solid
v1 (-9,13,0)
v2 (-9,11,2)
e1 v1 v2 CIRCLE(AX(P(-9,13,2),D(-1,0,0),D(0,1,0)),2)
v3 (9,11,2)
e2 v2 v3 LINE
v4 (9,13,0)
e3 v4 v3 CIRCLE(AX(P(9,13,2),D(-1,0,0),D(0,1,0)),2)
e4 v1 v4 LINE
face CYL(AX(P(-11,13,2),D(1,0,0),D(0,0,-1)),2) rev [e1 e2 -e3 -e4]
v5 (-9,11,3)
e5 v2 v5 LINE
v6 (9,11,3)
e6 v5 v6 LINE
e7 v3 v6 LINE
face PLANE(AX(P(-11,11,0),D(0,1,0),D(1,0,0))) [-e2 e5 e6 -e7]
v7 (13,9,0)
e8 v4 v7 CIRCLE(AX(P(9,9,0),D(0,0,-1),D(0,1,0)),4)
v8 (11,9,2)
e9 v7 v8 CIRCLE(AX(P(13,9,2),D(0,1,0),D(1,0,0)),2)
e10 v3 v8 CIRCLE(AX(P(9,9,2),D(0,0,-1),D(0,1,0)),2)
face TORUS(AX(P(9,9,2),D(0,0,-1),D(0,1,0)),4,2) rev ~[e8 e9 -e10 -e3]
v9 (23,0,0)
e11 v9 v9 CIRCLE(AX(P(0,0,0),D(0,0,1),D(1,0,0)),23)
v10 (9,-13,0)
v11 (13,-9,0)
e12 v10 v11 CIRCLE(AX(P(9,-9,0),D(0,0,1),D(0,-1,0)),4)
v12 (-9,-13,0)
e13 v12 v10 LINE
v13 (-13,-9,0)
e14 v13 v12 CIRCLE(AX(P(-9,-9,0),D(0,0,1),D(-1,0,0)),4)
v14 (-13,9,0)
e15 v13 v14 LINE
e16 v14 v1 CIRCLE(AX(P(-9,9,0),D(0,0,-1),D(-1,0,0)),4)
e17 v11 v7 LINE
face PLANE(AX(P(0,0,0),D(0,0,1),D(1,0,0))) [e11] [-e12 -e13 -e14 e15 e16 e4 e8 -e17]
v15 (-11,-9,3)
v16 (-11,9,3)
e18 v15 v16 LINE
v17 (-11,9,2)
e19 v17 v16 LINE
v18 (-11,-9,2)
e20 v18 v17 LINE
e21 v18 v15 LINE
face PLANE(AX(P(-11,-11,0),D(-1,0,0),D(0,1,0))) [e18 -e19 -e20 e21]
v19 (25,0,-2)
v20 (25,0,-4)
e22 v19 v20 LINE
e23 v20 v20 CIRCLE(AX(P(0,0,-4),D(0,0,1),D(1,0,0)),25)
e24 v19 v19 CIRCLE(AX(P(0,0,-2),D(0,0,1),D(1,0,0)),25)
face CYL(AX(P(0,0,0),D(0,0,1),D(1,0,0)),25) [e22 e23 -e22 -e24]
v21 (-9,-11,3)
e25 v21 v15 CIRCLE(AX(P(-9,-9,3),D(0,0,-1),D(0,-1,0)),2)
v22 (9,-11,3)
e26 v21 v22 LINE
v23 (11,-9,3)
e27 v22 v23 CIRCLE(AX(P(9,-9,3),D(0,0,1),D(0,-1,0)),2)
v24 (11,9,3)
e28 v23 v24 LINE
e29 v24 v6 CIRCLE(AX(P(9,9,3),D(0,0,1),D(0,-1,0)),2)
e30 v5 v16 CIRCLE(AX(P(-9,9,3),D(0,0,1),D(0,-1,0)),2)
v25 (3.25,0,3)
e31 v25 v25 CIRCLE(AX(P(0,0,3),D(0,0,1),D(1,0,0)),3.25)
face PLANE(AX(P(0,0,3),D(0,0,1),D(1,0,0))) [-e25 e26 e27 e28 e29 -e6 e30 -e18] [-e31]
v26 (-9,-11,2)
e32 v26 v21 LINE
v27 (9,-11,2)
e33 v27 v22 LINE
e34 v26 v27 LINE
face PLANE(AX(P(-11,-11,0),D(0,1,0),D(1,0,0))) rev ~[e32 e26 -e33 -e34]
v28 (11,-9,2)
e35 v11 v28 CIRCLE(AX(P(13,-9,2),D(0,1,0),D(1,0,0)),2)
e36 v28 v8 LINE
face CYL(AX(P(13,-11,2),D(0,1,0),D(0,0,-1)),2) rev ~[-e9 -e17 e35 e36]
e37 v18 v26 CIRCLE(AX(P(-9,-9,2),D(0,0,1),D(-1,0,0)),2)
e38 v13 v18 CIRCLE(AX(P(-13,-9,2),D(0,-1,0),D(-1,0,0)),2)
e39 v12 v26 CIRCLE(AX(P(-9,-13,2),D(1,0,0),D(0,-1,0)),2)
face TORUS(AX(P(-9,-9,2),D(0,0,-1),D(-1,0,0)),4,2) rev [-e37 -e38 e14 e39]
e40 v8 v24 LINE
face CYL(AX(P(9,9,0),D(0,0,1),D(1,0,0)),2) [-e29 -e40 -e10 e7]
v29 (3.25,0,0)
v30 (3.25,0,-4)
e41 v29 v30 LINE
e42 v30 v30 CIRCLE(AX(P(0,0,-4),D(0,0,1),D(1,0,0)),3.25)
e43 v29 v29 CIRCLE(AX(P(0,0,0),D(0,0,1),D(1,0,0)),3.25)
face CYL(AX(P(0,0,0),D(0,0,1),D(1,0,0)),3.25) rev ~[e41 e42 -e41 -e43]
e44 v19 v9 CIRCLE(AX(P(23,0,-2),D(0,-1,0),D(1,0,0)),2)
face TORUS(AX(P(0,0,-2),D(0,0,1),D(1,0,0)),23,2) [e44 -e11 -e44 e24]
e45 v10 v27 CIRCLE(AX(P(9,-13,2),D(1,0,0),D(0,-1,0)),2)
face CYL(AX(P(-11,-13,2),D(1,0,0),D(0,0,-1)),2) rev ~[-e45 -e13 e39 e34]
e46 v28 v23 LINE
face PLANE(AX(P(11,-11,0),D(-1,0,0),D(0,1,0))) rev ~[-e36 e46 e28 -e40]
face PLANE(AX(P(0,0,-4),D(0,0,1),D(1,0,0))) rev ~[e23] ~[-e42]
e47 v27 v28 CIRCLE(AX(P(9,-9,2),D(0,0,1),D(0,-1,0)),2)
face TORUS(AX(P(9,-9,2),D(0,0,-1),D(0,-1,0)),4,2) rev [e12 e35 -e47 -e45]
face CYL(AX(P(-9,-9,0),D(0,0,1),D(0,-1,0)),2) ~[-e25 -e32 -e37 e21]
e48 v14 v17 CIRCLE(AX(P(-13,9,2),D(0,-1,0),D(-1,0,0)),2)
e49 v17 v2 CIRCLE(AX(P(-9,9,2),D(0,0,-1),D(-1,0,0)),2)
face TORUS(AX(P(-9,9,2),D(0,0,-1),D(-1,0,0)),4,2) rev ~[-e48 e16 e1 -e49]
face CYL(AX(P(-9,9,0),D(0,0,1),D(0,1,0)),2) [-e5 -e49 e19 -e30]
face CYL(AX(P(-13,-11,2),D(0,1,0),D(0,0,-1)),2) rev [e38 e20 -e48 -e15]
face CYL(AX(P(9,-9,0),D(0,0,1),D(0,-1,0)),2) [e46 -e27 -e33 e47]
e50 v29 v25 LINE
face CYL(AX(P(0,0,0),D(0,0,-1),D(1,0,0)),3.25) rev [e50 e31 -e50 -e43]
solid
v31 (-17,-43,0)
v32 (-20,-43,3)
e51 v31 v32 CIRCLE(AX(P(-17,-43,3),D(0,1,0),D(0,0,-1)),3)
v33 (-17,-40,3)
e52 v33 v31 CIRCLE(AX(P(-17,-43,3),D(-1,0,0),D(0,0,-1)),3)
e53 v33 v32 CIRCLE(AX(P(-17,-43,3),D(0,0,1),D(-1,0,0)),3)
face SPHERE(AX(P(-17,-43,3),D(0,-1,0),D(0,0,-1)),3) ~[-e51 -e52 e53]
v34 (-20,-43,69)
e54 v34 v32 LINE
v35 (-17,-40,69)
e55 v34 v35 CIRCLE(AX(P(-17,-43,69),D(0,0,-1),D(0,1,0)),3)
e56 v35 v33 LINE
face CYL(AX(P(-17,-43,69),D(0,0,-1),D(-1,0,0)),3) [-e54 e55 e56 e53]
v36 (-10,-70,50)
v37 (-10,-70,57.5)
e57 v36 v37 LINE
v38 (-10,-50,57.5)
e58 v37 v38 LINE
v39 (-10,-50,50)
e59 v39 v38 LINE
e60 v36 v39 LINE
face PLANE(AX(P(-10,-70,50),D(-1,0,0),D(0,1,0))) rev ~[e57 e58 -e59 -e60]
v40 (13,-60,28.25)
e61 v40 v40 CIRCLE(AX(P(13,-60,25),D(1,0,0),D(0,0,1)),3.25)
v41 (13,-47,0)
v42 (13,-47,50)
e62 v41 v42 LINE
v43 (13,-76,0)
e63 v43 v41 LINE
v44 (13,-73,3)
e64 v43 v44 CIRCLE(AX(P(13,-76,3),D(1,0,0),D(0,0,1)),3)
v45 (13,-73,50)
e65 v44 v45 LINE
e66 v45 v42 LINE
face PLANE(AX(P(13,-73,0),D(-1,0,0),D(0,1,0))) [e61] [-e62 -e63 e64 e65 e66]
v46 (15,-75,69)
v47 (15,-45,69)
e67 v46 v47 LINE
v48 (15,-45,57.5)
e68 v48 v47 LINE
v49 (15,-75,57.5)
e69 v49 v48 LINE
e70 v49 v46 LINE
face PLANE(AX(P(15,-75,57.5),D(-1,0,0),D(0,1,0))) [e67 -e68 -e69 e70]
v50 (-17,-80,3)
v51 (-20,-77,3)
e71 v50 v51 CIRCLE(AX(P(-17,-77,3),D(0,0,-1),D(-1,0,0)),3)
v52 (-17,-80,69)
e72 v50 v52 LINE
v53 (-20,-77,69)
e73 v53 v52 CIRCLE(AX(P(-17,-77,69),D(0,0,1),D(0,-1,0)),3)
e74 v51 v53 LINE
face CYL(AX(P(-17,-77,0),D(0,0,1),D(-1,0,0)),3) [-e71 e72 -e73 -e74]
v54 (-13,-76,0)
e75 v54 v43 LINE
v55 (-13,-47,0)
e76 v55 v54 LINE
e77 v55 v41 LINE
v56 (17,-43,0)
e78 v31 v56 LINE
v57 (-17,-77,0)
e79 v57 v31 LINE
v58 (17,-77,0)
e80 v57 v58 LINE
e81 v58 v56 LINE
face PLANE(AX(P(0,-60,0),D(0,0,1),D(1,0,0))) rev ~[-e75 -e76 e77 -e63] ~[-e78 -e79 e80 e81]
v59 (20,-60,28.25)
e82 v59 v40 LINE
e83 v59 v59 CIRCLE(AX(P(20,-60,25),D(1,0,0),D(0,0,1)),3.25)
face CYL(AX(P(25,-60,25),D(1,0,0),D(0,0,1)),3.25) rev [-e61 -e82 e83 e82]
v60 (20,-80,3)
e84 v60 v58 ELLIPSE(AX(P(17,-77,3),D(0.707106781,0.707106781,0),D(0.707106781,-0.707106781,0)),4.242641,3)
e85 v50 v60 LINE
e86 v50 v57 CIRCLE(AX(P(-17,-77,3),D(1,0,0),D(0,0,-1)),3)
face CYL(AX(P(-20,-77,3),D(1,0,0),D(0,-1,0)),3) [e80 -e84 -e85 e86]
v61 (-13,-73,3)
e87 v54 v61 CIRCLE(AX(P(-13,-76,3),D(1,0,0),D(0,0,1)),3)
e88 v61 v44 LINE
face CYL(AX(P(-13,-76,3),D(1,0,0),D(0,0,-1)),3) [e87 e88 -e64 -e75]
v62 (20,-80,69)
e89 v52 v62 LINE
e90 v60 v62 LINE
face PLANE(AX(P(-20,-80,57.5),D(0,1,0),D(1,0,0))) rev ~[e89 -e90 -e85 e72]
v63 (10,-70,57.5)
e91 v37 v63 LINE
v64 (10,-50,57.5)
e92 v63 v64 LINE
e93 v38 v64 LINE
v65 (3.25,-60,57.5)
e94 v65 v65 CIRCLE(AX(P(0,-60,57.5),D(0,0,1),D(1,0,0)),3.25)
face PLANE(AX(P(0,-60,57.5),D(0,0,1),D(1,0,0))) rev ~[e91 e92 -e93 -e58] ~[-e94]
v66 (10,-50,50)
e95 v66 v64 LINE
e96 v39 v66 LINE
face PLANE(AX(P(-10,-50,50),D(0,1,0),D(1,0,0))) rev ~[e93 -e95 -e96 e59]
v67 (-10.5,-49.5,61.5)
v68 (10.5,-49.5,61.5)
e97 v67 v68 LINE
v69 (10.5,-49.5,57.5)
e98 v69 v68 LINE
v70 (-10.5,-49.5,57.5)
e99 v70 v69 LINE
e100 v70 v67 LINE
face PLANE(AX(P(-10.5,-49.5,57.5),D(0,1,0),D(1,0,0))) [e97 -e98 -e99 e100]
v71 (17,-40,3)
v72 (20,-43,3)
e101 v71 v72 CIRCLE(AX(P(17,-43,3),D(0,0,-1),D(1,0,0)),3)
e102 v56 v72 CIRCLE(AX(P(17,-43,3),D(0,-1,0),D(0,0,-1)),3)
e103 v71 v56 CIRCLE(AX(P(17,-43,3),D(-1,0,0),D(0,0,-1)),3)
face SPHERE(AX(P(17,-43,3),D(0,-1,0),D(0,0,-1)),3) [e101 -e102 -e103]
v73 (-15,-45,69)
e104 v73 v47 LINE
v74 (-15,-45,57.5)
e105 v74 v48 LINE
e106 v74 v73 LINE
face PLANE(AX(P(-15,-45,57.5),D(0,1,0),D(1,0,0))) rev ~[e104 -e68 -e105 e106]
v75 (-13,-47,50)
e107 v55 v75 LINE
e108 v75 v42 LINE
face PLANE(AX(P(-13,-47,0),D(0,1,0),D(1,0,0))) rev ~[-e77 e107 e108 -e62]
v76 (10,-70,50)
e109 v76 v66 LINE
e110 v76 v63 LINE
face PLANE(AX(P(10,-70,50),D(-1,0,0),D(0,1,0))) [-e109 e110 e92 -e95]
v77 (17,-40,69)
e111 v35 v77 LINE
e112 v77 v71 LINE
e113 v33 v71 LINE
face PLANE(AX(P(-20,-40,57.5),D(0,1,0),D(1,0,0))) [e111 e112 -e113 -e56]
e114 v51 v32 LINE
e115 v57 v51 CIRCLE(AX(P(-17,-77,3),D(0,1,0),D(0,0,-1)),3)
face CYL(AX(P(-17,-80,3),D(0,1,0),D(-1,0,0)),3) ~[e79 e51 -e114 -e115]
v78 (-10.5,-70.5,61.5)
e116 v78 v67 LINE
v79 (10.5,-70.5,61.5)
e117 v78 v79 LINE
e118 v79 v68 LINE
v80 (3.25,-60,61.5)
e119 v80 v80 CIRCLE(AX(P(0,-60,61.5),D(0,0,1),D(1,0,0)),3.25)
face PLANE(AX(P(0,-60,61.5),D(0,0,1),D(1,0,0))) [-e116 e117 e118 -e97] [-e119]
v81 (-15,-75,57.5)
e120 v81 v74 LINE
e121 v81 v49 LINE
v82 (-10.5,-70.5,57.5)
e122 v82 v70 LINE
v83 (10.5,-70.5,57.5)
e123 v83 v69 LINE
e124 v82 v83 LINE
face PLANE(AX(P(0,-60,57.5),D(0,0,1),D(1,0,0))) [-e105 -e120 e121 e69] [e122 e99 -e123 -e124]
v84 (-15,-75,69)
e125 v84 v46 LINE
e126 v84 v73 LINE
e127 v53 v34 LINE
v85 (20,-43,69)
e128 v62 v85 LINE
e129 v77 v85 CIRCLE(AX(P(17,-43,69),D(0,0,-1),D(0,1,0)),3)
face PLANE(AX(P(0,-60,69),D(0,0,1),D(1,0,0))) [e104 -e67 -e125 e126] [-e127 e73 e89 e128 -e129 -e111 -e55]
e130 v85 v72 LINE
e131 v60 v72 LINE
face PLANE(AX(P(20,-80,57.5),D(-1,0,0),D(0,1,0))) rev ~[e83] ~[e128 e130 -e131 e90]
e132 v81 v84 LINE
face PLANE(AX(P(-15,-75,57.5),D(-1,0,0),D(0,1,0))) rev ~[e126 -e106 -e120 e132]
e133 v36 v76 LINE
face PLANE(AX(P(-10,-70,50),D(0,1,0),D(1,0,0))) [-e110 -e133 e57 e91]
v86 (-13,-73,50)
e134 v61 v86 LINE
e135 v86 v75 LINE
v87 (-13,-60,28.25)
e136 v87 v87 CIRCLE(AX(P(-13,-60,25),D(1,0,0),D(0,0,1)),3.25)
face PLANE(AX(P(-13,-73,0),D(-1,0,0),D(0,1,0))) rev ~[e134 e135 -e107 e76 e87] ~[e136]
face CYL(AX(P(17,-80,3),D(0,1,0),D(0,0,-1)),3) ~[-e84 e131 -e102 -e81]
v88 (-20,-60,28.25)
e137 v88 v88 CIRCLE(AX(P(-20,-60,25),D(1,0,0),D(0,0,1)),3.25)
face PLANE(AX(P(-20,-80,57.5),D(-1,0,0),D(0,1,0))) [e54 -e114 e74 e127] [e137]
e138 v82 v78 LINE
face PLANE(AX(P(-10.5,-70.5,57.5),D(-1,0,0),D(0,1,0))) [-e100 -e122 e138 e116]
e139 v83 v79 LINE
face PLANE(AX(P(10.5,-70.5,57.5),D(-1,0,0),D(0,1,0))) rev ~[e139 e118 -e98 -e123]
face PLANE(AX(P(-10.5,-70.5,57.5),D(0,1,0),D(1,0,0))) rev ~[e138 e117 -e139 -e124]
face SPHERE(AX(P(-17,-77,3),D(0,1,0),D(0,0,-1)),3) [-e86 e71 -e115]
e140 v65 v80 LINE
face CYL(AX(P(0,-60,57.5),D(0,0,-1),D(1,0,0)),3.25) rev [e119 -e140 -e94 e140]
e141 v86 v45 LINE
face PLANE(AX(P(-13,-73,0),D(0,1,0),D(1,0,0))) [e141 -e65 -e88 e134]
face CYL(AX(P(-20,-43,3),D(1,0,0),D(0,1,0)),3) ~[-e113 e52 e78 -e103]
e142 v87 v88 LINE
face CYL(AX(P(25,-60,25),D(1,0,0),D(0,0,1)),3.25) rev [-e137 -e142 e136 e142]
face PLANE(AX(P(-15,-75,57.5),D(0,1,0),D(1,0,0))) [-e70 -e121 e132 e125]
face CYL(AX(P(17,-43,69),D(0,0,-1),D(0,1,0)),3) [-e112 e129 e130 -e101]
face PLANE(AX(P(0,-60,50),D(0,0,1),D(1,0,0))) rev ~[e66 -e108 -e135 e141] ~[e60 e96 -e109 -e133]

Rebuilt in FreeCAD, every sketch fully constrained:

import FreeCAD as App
import Part
import Sketcher


def edges_at(feature, points):
    """Names of the edges that pass closest to the given points."""
    edges = feature.Shape.Edges
    near = lambda p: min(range(len(edges)), key=lambda i: edges[i].distToShape(Part.Vertex(*p))[0])
    return sorted({f"Edge{near(p) + 1}" for p in points})


def add_polygon(sketch, points):
    """Adds a closed chain of lines whose ends are joined by coincident constraints."""
    first, n = sketch.GeometryCount, len(points)
    for a, b in zip(points, points[1:] + points[:1]):
        sketch.addGeometry(Part.LineSegment(App.Vector(*a, 0), App.Vector(*b, 0)), False)
    for i in range(n):
        sketch.addConstraint(Sketcher.Constraint("Coincident", first + i, 2, first + (i + 1) % n, 1))

doc = App.newDocument("Part")
body = doc.addObject("PartDesign::Body", "Body")

sketch1 = body.newObject("Sketcher::SketchObject", "Sketch")
sketch1.AttachmentSupport = (doc.getObject("XY_Plane"), [""])
sketch1.MapMode = "FlatFace"
sketch1.addGeometry([
    Part.Circle(App.Vector(0, 0, 0), App.Vector(0, 0, 1), 25),
    Part.Circle(App.Vector(0, 0, 0), App.Vector(0, 0, 1), 3.2),
], False)
sketch1.addConstraint([
    Sketcher.Constraint("Coincident", 0, 3, -1, 1),
    Sketcher.Constraint("Coincident", 1, 3, -1, 1),
    Sketcher.Constraint("Diameter", 0, 50.0),
    Sketcher.Constraint("Diameter", 1, 6.5),
])
pad1 = body.newObject("PartDesign::Pad", "Pad")
pad1.Profile = sketch1
pad1.Length = 4
pad1.Reversed = True
body2 = doc.addObject("PartDesign::Body", "Body001")

sketch2 = body2.newObject("Sketcher::SketchObject", "Sketch001")
sketch2.AttachmentSupport = (doc.getObject("XY_Plane001"), [""])
sketch2.MapMode = "FlatFace"
add_polygon(sketch2, [(-11, 11), (-11, -11), (11, -11), (11, 11)])
sketch2.addGeometry(Part.Circle(App.Vector(0, 0, 0), App.Vector(0, 0, 1), 3.2), False)
sketch2.addConstraint([
    Sketcher.Constraint("Vertical", 0),
    Sketcher.Constraint("Horizontal", 1),
    Sketcher.Constraint("Vertical", 2),
    Sketcher.Constraint("Horizontal", 3),
    Sketcher.Constraint("Coincident", 4, 3, -1, 1),
    Sketcher.Constraint("Symmetric", 0, 2, 2, 2, -1, 1),
    Sketcher.Constraint("Equal", 3, 0),
    Sketcher.Constraint("Diameter", 4, 6.5),
    Sketcher.Constraint("DistanceX", 1, 1, 1, 2, 22.0),
])
pad2 = body2.newObject("PartDesign::Pad", "Pad001")
pad2.Profile = sketch2
pad2.Length = 3
doc.recompute()

boolean = body2.newObject("PartDesign::Boolean", "Boolean")
boolean.Type = "Fuse"
boolean.addObjects([body])
doc.recompute()

fillet = body2.newObject("PartDesign::Fillet", "Fillet")
fillet.Base = (boolean, edges_at(boolean, [
    (-11, 11, 1.5),
    (-11, -11, 1.5),
    (-11, 0, 0),
    (11, 11, 1.5),
    (0, 11, 0),
    (11, -11, 1.5),
    (0, -11, 0),
    (-25, 0, 0),
    (11, 0, 0),
]))
fillet.Radius = 2
body3 = doc.addObject("PartDesign::Body", "Body002")

sketch3 = body3.newObject("Sketcher::SketchObject", "Sketch002")
sketch3.AttachmentSupport = (doc.getObject("YZ_Plane002"), [""])
sketch3.MapMode = "FlatFace"
sketch3.AttachmentOffset = App.Placement(App.Vector(0, 0, 25), App.Rotation())
sketch3.addGeometry(Part.Circle(App.Vector(-60, 25, 0), App.Vector(0, 0, 1), 3.2), False)
sketch3.addConstraint([
    Sketcher.Constraint("Diameter", 0, 6.5),
    Sketcher.Constraint("DistanceX", 0, 3, -1, 1, 60.0),
    Sketcher.Constraint("DistanceY", -1, 1, 0, 3, 25.0),
])
pad3 = body3.newObject("PartDesign::Pad", "Pad002")
pad3.Profile = sketch3
pad3.Length = 60
pad3.Reversed = True
body4 = doc.addObject("PartDesign::Body", "Body003")

sketch4 = body4.newObject("Sketcher::SketchObject", "Sketch003")
sketch4.AttachmentSupport = (doc.getObject("XY_Plane003"), [""])
sketch4.MapMode = "FlatFace"
add_polygon(sketch4, [(-20, -40), (-20, -80), (20, -80), (20, -40)])
add_polygon(sketch4, [(13, -73), (-13, -73), (-13, -47), (13, -47)])
sketch4.addConstraint([
    Sketcher.Constraint("Vertical", 0),
    Sketcher.Constraint("Horizontal", 1),
    Sketcher.Constraint("Vertical", 2),
    Sketcher.Constraint("Horizontal", 3),
    Sketcher.Constraint("Horizontal", 4),
    Sketcher.Constraint("Vertical", 5),
    Sketcher.Constraint("Horizontal", 6),
    Sketcher.Constraint("Vertical", 7),
    Sketcher.Constraint("Equal", 3, 0),
    Sketcher.Constraint("Equal", 6, 5),
    Sketcher.Constraint("DistanceX", 1, 1, 1, 2, 40.0),
    Sketcher.Constraint("DistanceX", 4, 2, 4, 1, 26.0),
    Sketcher.Constraint("DistanceX", 0, 2, -1, 1, 20.0),
    Sketcher.Constraint("DistanceY", 0, 2, -1, 1, 80.0),
    Sketcher.Constraint("DistanceX", 4, 2, -1, 1, 13.0),
    Sketcher.Constraint("DistanceY", 4, 2, -1, 1, 73.0),
])
pad4 = body4.newObject("PartDesign::Pad", "Pad003")
pad4.Profile = sketch4
pad4.Length = 50
body5 = doc.addObject("PartDesign::Body", "Body004")

sketch5 = body5.newObject("Sketcher::SketchObject", "Sketch004")
sketch5.AttachmentSupport = (doc.getObject("XY_Plane004"), [""])
sketch5.MapMode = "FlatFace"
sketch5.AttachmentOffset = App.Placement(App.Vector(0, 0, 50), App.Rotation())
add_polygon(sketch5, [(-20, 20), (-20, -20), (20, -20), (20, 20)])
add_polygon(sketch5, [(10, -10), (-10, -10), (-10, 10), (10, 10)])
sketch5.addConstraint([
    Sketcher.Constraint("Vertical", 0),
    Sketcher.Constraint("Horizontal", 1),
    Sketcher.Constraint("Vertical", 2),
    Sketcher.Constraint("Horizontal", 3),
    Sketcher.Constraint("Horizontal", 4),
    Sketcher.Constraint("Vertical", 5),
    Sketcher.Constraint("Horizontal", 6),
    Sketcher.Constraint("Vertical", 7),
    Sketcher.Constraint("Symmetric", 0, 2, 2, 2, -1, 1),
    Sketcher.Constraint("Symmetric", 4, 2, 6, 2, -1, 1),
    Sketcher.Constraint("Equal", 3, 0),
    Sketcher.Constraint("Equal", 6, 5),
    Sketcher.Constraint("DistanceX", 1, 1, 1, 2, 40.0),
    Sketcher.Constraint("DistanceX", 4, 2, 4, 1, 20.0),
])
pad5 = body5.newObject("PartDesign::Pad", "Pad004")
pad5.Profile = sketch5
pad5.Length = 7.5
body6 = doc.addObject("PartDesign::Body", "Body005")
doc.recompute()

body5.Placement = App.Placement(App.Vector(0, -60, 0), App.Rotation(App.Vector(0, 0, 1), 0))
boolean2 = body6.newObject("PartDesign::Boolean", "Boolean001")
boolean2.Type = "Fuse"
boolean2.addObjects([body5])
body7 = doc.addObject("PartDesign::Body", "Body006")

sketch6 = body7.newObject("Sketcher::SketchObject", "Sketch005")
sketch6.AttachmentSupport = (doc.getObject("XY_Plane006"), [""])
sketch6.MapMode = "FlatFace"
sketch6.AttachmentOffset = App.Placement(App.Vector(0, 0, 57.5), App.Rotation())
add_polygon(sketch6, [(-20, -40), (-20, -80), (20, -80), (20, -40)])
add_polygon(sketch6, [(15, -75), (-15, -75), (-15, -45), (15, -45)])
sketch6.addConstraint([
    Sketcher.Constraint("Vertical", 0),
    Sketcher.Constraint("Horizontal", 1),
    Sketcher.Constraint("Vertical", 2),
    Sketcher.Constraint("Horizontal", 3),
    Sketcher.Constraint("Horizontal", 4),
    Sketcher.Constraint("Vertical", 5),
    Sketcher.Constraint("Horizontal", 6),
    Sketcher.Constraint("Vertical", 7),
    Sketcher.Constraint("Equal", 3, 0),
    Sketcher.Constraint("Equal", 6, 5),
    Sketcher.Constraint("DistanceX", 1, 1, 1, 2, 40.0),
    Sketcher.Constraint("DistanceX", 4, 2, 4, 1, 30.0),
    Sketcher.Constraint("DistanceX", 0, 2, -1, 1, 20.0),
    Sketcher.Constraint("DistanceY", 0, 2, -1, 1, 80.0),
    Sketcher.Constraint("DistanceX", 4, 2, -1, 1, 15.0),
    Sketcher.Constraint("DistanceY", 4, 2, -1, 1, 75.0),
])
pad6 = body7.newObject("PartDesign::Pad", "Pad005")
pad6.Profile = sketch6
pad6.Length = 11.5
body8 = doc.addObject("PartDesign::Body", "Body007")
body8.AllowCompound = True

sketch7 = body8.newObject("Sketcher::SketchObject", "Sketch006")
sketch7.AttachmentSupport = (doc.getObject("XY_Plane007"), [""])
sketch7.MapMode = "FlatFace"
sketch7.AttachmentOffset = App.Placement(App.Vector(0, 0, 57.5), App.Rotation())
add_polygon(sketch7, [(-10.5, -49.5), (-10.5, -70.5), (10.5, -70.5), (10.5, -49.5)])
sketch7.addGeometry(Part.Circle(App.Vector(0, -60, 0), App.Vector(0, 0, 1), 3.2), False)
sketch7.addConstraint([
    Sketcher.Constraint("Vertical", 0),
    Sketcher.Constraint("Horizontal", 1),
    Sketcher.Constraint("Vertical", 2),
    Sketcher.Constraint("Horizontal", 3),
    Sketcher.Constraint("PointOnObject", 4, 3, -2),
    Sketcher.Constraint("Equal", 3, 0),
    Sketcher.Constraint("Diameter", 4, 6.5),
    Sketcher.Constraint("DistanceX", 1, 1, 1, 2, 21.0),
    Sketcher.Constraint("DistanceY", 4, 3, -1, 1, 60.0),
    Sketcher.Constraint("DistanceX", 0, 2, -1, 1, 10.5),
    Sketcher.Constraint("DistanceY", 0, 2, -1, 1, 70.5),
])
pad7 = body8.newObject("PartDesign::Pad", "Pad006")
pad7.Profile = sketch7
pad7.Length = 4
doc.recompute()

boolean3 = body8.newObject("PartDesign::Boolean", "Boolean002")
boolean3.Type = "Fuse"
boolean3.addObjects([body4])
doc.recompute()

boolean4 = body8.newObject("PartDesign::Boolean", "Boolean003")
boolean4.Type = "Fuse"
boolean4.addObjects([body6])
doc.recompute()

boolean5 = body8.newObject("PartDesign::Boolean", "Boolean004")
boolean5.Type = "Fuse"
boolean5.addObjects([body7])
doc.recompute()

boolean6 = body8.newObject("PartDesign::Boolean", "Boolean005")
boolean6.Type = "Cut"
boolean6.addObjects([body3])
doc.recompute()

fillet2 = body8.newObject("PartDesign::Fillet", "Fillet001")
fillet2.Base = (boolean6, edges_at(boolean6, [
    (-20, -60, 0),
    (0, -80, 0),
    (20, -60, 0),
    (0, -40, 0),
    (-20, -40, 34.5),
    (-20, -80, 34.5),
    (0, -73, 0),
    (20, -40, 34.5),
]))
fillet2.Radius = 3

doc.recompute()
